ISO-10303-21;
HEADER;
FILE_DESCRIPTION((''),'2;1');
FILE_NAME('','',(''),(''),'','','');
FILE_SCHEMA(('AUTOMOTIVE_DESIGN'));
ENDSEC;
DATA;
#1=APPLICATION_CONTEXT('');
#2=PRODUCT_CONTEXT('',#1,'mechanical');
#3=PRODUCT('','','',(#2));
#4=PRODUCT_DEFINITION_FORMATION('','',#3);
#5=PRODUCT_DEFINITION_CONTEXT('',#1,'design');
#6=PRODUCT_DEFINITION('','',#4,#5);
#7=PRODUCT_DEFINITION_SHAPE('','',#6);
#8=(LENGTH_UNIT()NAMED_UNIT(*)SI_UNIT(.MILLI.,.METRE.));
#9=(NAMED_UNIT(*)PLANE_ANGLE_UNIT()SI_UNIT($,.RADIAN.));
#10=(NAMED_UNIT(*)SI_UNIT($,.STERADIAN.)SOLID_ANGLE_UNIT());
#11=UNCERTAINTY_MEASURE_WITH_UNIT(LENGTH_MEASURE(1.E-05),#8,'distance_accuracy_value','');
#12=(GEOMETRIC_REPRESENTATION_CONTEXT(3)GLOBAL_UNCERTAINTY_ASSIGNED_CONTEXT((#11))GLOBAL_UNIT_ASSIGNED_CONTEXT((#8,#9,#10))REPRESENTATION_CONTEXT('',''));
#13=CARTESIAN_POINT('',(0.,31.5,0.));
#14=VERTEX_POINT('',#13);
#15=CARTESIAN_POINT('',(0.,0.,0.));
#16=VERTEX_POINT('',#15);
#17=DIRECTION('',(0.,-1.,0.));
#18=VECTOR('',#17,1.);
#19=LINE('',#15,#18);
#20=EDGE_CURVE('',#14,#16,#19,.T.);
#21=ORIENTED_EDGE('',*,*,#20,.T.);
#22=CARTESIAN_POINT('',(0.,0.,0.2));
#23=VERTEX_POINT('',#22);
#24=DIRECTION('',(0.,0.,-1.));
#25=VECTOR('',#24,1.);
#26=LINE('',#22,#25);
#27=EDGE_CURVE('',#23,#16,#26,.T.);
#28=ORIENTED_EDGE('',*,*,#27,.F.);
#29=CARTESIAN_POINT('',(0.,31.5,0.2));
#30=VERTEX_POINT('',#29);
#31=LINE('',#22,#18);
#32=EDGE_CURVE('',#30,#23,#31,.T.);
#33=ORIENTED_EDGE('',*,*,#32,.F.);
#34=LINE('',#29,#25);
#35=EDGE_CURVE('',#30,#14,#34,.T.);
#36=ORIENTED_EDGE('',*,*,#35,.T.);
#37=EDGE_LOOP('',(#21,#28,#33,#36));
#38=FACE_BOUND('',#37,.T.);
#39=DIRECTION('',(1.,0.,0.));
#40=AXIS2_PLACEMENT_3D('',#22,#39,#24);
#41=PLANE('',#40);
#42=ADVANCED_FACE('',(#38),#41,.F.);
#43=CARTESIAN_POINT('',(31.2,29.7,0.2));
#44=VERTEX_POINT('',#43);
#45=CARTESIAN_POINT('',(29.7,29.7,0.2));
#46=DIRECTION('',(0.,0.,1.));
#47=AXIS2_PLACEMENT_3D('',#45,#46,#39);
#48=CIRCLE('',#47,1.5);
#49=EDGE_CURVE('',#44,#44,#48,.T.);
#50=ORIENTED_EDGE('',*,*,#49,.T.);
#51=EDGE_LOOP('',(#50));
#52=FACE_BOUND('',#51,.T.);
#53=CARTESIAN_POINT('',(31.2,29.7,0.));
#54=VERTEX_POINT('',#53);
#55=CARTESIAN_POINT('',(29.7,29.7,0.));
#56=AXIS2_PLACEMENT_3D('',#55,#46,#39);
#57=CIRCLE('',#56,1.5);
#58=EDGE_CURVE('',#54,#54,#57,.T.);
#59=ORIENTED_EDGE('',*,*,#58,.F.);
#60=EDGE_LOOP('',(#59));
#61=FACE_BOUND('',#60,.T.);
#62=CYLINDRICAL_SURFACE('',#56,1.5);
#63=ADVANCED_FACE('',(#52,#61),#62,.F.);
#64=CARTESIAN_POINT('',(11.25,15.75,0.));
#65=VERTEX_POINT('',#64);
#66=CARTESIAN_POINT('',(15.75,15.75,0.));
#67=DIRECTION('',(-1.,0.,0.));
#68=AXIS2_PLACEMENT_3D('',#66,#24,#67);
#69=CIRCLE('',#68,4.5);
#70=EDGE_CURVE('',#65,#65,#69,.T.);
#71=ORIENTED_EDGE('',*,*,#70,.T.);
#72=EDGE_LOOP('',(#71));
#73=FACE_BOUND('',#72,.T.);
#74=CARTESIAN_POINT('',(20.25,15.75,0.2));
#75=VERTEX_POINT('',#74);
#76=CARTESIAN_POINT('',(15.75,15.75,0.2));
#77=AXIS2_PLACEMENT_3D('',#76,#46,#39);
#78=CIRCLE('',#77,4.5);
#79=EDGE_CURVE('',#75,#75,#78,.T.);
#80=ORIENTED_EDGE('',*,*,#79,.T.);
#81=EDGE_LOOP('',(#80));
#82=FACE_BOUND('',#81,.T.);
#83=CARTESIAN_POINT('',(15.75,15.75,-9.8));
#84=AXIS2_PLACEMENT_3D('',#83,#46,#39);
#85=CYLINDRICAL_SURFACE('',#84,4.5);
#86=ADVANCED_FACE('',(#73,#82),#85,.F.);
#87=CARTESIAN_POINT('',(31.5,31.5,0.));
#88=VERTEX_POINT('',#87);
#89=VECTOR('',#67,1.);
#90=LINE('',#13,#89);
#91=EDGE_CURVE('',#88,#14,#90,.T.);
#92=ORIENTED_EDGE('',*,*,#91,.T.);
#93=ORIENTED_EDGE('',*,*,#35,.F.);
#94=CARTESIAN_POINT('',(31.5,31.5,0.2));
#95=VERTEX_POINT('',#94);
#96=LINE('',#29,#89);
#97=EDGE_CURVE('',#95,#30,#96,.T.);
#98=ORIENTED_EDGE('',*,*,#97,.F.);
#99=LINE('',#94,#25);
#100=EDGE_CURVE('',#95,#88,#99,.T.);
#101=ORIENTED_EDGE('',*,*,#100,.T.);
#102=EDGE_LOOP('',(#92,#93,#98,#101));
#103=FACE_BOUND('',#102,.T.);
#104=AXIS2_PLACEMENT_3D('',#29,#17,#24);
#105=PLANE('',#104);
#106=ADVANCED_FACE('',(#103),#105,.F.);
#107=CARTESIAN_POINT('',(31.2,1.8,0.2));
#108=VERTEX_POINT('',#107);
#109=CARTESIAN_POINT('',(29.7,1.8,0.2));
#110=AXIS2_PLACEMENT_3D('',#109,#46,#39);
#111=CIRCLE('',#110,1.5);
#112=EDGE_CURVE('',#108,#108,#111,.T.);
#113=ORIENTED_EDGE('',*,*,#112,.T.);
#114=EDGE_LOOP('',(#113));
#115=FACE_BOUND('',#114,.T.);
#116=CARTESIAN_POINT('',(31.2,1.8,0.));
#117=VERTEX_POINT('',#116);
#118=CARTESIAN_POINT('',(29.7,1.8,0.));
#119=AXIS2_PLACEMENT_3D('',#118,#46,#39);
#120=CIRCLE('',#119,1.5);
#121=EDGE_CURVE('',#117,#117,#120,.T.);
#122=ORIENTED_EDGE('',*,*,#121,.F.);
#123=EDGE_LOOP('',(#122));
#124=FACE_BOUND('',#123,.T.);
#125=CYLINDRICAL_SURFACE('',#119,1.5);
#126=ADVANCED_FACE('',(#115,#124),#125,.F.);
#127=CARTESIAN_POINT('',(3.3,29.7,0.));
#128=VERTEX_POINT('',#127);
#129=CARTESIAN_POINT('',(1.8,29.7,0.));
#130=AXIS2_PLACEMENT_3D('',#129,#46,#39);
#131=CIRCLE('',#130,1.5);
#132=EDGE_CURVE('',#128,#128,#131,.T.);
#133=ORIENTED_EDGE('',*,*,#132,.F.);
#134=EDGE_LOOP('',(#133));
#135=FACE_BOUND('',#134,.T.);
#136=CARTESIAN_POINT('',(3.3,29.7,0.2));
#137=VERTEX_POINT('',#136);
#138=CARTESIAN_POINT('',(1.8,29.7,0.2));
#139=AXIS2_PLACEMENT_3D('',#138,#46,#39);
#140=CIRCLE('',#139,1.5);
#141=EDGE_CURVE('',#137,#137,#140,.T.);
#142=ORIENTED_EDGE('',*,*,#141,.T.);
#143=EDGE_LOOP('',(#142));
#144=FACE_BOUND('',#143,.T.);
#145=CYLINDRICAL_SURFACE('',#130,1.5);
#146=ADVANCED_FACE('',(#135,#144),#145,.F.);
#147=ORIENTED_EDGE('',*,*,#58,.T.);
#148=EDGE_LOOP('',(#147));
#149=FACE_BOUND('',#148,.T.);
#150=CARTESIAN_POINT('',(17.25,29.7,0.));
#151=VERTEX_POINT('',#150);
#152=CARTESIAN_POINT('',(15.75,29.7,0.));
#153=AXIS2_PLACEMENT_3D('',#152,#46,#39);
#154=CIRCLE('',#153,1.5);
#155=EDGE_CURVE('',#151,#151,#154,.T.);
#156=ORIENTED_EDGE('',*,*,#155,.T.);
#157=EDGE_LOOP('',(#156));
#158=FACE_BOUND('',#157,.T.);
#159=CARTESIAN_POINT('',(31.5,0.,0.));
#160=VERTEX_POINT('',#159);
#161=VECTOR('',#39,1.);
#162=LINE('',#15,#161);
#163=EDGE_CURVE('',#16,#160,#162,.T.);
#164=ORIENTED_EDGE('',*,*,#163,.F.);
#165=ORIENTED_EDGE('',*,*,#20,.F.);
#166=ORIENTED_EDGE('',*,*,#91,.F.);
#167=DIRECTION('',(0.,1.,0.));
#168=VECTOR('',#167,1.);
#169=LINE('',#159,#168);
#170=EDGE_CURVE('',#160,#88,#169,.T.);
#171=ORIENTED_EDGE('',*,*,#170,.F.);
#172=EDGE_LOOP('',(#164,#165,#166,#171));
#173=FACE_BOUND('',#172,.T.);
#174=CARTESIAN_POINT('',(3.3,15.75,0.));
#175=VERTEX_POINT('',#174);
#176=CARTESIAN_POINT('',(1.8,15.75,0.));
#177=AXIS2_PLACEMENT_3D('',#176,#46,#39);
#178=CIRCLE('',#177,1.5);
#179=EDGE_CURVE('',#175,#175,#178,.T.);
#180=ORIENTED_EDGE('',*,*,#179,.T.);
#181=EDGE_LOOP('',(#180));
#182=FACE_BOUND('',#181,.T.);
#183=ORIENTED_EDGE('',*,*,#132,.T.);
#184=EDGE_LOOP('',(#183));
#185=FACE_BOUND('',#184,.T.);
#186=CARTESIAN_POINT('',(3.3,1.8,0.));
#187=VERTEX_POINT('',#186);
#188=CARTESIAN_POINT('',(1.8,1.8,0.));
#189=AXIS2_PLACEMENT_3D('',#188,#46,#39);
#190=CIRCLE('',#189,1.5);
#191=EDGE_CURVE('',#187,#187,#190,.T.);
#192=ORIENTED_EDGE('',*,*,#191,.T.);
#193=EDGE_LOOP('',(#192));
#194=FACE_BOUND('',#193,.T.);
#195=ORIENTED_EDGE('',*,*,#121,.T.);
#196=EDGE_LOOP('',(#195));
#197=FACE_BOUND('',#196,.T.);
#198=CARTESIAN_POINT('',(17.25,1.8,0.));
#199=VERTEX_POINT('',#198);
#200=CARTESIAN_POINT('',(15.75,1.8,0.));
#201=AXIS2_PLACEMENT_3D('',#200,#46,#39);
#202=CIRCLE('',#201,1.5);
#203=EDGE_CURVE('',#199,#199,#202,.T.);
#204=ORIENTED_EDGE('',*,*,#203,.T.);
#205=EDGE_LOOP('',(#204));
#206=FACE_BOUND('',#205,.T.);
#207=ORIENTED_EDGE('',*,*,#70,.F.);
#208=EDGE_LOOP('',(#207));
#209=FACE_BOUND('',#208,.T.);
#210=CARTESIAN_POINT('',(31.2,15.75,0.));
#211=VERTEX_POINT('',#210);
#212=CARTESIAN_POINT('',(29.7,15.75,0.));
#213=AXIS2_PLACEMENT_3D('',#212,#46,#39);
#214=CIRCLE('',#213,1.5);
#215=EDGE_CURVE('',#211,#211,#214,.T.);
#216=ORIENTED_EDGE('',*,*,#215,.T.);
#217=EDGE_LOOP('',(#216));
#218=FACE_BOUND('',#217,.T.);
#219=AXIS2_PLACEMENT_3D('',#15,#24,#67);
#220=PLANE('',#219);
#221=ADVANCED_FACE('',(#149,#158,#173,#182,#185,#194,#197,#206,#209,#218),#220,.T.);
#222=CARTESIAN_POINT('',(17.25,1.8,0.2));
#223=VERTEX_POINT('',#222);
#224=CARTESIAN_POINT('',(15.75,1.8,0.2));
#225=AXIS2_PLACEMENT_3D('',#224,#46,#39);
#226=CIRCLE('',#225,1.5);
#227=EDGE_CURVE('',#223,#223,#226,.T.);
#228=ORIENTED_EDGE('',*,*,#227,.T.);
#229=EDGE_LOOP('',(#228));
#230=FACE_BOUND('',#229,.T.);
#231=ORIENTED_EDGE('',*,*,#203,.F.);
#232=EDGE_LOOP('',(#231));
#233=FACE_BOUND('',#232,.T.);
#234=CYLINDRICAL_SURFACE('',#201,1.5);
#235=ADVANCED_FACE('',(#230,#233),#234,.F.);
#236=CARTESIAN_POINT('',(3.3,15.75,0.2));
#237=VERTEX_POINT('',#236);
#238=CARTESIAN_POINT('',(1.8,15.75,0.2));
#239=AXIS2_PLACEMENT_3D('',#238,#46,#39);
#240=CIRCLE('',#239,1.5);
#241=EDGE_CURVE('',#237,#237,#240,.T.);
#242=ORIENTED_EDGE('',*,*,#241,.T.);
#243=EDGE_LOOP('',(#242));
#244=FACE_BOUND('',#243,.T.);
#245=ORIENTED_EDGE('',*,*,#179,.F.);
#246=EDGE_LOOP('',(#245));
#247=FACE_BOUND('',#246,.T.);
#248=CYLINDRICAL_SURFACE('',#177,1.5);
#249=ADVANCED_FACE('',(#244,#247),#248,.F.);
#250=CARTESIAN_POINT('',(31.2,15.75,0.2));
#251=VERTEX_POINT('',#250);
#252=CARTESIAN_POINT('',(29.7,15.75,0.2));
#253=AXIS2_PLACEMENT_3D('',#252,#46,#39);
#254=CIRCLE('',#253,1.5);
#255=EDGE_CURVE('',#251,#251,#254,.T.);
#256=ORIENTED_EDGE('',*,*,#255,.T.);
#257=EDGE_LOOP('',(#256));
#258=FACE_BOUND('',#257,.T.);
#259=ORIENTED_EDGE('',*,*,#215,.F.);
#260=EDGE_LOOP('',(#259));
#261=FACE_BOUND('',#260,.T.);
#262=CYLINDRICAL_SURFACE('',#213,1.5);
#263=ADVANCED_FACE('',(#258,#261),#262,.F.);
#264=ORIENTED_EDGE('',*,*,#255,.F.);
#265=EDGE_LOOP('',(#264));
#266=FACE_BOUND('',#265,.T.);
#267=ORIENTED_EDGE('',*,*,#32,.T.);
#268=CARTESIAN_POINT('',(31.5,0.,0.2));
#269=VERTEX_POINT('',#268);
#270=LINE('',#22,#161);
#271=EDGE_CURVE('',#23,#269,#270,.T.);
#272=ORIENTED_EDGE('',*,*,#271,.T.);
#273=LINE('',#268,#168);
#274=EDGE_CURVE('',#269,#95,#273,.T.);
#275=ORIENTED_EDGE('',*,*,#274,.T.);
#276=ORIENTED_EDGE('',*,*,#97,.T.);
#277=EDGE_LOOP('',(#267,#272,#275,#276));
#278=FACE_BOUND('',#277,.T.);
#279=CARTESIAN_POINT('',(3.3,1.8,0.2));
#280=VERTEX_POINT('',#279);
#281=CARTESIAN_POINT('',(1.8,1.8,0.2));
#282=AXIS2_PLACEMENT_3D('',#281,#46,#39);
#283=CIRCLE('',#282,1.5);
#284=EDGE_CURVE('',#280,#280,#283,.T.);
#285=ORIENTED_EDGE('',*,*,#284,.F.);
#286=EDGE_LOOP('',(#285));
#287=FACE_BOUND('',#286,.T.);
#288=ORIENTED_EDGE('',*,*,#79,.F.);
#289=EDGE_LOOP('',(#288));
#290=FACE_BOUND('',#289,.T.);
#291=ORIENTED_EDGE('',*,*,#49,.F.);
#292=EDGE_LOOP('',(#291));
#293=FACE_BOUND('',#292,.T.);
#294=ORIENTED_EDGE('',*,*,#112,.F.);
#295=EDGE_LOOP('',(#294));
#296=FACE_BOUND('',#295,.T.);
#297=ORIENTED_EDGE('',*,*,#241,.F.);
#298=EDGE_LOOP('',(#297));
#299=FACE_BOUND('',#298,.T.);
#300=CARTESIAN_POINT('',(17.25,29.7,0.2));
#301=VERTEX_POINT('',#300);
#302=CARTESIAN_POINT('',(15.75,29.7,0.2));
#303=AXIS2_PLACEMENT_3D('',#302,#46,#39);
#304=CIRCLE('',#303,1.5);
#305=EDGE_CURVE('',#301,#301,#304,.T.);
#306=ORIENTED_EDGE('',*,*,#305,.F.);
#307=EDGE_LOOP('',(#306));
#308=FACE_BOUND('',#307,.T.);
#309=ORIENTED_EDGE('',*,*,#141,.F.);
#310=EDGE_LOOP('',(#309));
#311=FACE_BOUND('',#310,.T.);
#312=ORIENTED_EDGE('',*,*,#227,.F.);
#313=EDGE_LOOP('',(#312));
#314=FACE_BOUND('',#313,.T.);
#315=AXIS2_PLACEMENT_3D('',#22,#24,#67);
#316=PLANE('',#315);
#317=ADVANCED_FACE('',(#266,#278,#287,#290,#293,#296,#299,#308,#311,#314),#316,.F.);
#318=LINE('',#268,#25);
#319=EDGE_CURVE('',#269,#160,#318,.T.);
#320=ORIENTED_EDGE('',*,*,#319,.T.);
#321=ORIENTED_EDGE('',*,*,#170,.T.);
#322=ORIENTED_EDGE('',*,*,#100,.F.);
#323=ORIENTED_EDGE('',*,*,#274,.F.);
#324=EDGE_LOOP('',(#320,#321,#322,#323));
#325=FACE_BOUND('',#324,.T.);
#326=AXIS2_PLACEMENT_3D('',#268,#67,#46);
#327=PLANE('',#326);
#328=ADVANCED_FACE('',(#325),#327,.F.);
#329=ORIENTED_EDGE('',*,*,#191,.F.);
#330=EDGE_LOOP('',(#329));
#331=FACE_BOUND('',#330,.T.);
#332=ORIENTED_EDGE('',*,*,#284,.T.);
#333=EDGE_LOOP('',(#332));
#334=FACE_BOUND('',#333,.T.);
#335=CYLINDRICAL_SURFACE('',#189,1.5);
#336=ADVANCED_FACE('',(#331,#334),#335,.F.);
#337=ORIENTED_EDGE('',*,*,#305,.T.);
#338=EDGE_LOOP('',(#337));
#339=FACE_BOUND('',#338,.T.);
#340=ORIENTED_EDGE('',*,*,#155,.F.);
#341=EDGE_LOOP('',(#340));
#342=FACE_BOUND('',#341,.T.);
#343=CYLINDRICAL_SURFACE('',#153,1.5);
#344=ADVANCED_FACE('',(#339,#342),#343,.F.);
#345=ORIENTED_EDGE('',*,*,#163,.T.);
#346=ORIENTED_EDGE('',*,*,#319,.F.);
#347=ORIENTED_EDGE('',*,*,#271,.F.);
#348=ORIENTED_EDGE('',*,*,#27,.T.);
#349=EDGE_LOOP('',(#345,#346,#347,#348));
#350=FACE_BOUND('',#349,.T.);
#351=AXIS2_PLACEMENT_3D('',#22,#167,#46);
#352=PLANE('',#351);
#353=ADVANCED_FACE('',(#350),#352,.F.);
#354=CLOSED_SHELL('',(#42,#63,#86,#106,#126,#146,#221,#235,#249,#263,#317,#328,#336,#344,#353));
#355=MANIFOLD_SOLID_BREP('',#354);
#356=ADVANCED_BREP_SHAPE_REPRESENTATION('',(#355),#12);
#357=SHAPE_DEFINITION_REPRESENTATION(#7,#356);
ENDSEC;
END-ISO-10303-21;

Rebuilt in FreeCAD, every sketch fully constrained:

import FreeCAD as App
import Part
import Sketcher
from FreeCAD import Vector
Q = App.Units.Quantity


def add_polygon(sketch, points):
    """Adds a closed chain of lines whose ends are joined by coincident constraints."""
    first, n = sketch.GeometryCount, len(points)
    for a, b in zip(points, points[1:] + points[:1]):
        sketch.addGeometry(Part.LineSegment(App.Vector(*a, 0), App.Vector(*b, 0)), False)
    for i in range(n):
        sketch.addConstraint(Sketcher.Constraint("Coincident", first + i, 2, first + (i + 1) % n, 1))

doc = App.newDocument("Part")
body = doc.addObject("PartDesign::Body", "Body")

sketch1 = body.newObject("Sketcher::SketchObject", "Sketch")
sketch1.AttachmentSupport = (doc.getObject("XY_Plane"), [""])
sketch1.MapMode = "FlatFace"
add_polygon(sketch1, [(0, 32), (0, 0), (32, 0), (32, 32)])
sketch1.addConstraint([
    Sketcher.Constraint("Vertical", 0),
    Sketcher.Constraint("Horizontal", 1),
    Sketcher.Constraint("Vertical", 2),
    Sketcher.Constraint("Horizontal", 3),
    Sketcher.Constraint("Coincident", 0, 2, -1, 1),
    Sketcher.Constraint("Equal", 3, 0),
    Sketcher.Constraint("DistanceX", 1, 1, 1, 2, Q("31.5 mm")),
])
pad1 = body.newObject("PartDesign::Pad", "Pad")
pad1.Profile = sketch1
pad1.Length = 0.2

sketch2 = body.newObject("Sketcher::SketchObject", "Sketch001")
sketch2.AttachmentSupport = (doc.getObject("XY_Plane"), [""])
sketch2.MapMode = "FlatFace"
sketch2.AttachmentOffset = App.Placement(Vector(0, 0, 0.2), App.Rotation())
sketch2.addGeometry(Part.Circle(Vector(15.8, 15.8, 0), Vector(0, 0, 1), 4.5), False)
sketch2.addConstraint([
    Sketcher.Constraint("Diameter", 0, Q("9 mm")),
    Sketcher.Constraint("DistanceX", -1, 1, 0, 3, Q("15.75 mm")),
    Sketcher.Constraint("DistanceY", -1, 1, 0, 3, Q("15.75 mm")),
])
pocket1 = body.newObject("PartDesign::Pocket", "Pocket")
pocket1.Profile = sketch2
pocket1.Length = 10

sketch3 = body.newObject("Sketcher::SketchObject", "Sketch002")
sketch3.AttachmentSupport = (doc.getObject("XY_Plane"), [""])
sketch3.MapMode = "FlatFace"
sketch3.AttachmentOffset = App.Placement(Vector(0, 0, 0.2), App.Rotation())
sketch3.addGeometry([
    Part.Circle(Vector(29.7, 15.8, 0), Vector(0, 0, 1), 1.5),
    Part.Circle(Vector(15.8, 15.8, 0), Vector(0, 0, 1), 4.5),
    Part.Circle(Vector(15.8, 1.8, 0), Vector(0, 0, 1), 1.5),
    Part.Circle(Vector(1.8, 15.8, 0), Vector(0, 0, 1), 1.5),
    Part.Circle(Vector(15.8, 29.7, 0), Vector(0, 0, 1), 1.5),
    Part.Circle(Vector(1.8, 29.7, 0), Vector(0, 0, 1), 1.5),
    Part.Circle(Vector(29.7, 29.7, 0), Vector(0, 0, 1), 1.5),
    Part.Circle(Vector(29.7, 1.8, 0), Vector(0, 0, 1), 1.5),
    Part.Circle(Vector(1.8, 1.8, 0), Vector(0, 0, 1), 1.5),
], False)
sketch3.addConstraint([
    Sketcher.Constraint("Equal", 0, 2),
    Sketcher.Constraint("Equal", 2, 3),
    Sketcher.Constraint("Equal", 3, 4),
    Sketcher.Constraint("Equal", 4, 5),
    Sketcher.Constraint("Equal", 5, 6),
    Sketcher.Constraint("Equal", 6, 7),
    Sketcher.Constraint("Equal", 7, 8),
    Sketcher.Constraint("Horizontal", 0, 3, 1, 3),
    Sketcher.Constraint("Horizontal", 1, 3, 3, 3),
    Sketcher.Constraint("Horizontal", 4, 3, 5, 3),
    Sketcher.Constraint("Horizontal", 5, 3, 6, 3),
    Sketcher.Constraint("Horizontal", 2, 3, 7, 3),
    Sketcher.Constraint("Horizontal", 7, 3, 8, 3),
    Sketcher.Constraint("Vertical", 1, 3, 2, 3),
    Sketcher.Constraint("Vertical", 2, 3, 4, 3),
    Sketcher.Constraint("Vertical", 3, 3, 5, 3),
    Sketcher.Constraint("Vertical", 0, 3, 6, 3),
    Sketcher.Constraint("Vertical", 6, 3, 7, 3),
    Sketcher.Constraint("Vertical", 5, 3, 8, 3),
    Sketcher.Constraint("Diameter", 0, Q("3 mm")),
    Sketcher.Constraint("Diameter", 1, Q("9 mm")),
    Sketcher.Constraint("DistanceX", -1, 1, 0, 3, Q("29.7 mm")),
    Sketcher.Constraint("DistanceY", -1, 1, 2, 3, Q("1.8 mm")),
    Sketcher.Constraint("DistanceX", -1, 1, 3, 3, Q("1.8 mm")),
    Sketcher.Constraint("DistanceY", -1, 1, 4, 3, Q("29.7 mm")),
    Sketcher.Constraint("DistanceY", -1, 1, 0, 3, Q("15.75 mm")),
    Sketcher.Constraint("DistanceX", -1, 1, 1, 3, Q("15.75 mm")),
])
pocket2 = body.newObject("PartDesign::Pocket", "Pocket001")
pocket2.Profile = sketch3
pocket2.Length = 0.2

doc.recompute()
